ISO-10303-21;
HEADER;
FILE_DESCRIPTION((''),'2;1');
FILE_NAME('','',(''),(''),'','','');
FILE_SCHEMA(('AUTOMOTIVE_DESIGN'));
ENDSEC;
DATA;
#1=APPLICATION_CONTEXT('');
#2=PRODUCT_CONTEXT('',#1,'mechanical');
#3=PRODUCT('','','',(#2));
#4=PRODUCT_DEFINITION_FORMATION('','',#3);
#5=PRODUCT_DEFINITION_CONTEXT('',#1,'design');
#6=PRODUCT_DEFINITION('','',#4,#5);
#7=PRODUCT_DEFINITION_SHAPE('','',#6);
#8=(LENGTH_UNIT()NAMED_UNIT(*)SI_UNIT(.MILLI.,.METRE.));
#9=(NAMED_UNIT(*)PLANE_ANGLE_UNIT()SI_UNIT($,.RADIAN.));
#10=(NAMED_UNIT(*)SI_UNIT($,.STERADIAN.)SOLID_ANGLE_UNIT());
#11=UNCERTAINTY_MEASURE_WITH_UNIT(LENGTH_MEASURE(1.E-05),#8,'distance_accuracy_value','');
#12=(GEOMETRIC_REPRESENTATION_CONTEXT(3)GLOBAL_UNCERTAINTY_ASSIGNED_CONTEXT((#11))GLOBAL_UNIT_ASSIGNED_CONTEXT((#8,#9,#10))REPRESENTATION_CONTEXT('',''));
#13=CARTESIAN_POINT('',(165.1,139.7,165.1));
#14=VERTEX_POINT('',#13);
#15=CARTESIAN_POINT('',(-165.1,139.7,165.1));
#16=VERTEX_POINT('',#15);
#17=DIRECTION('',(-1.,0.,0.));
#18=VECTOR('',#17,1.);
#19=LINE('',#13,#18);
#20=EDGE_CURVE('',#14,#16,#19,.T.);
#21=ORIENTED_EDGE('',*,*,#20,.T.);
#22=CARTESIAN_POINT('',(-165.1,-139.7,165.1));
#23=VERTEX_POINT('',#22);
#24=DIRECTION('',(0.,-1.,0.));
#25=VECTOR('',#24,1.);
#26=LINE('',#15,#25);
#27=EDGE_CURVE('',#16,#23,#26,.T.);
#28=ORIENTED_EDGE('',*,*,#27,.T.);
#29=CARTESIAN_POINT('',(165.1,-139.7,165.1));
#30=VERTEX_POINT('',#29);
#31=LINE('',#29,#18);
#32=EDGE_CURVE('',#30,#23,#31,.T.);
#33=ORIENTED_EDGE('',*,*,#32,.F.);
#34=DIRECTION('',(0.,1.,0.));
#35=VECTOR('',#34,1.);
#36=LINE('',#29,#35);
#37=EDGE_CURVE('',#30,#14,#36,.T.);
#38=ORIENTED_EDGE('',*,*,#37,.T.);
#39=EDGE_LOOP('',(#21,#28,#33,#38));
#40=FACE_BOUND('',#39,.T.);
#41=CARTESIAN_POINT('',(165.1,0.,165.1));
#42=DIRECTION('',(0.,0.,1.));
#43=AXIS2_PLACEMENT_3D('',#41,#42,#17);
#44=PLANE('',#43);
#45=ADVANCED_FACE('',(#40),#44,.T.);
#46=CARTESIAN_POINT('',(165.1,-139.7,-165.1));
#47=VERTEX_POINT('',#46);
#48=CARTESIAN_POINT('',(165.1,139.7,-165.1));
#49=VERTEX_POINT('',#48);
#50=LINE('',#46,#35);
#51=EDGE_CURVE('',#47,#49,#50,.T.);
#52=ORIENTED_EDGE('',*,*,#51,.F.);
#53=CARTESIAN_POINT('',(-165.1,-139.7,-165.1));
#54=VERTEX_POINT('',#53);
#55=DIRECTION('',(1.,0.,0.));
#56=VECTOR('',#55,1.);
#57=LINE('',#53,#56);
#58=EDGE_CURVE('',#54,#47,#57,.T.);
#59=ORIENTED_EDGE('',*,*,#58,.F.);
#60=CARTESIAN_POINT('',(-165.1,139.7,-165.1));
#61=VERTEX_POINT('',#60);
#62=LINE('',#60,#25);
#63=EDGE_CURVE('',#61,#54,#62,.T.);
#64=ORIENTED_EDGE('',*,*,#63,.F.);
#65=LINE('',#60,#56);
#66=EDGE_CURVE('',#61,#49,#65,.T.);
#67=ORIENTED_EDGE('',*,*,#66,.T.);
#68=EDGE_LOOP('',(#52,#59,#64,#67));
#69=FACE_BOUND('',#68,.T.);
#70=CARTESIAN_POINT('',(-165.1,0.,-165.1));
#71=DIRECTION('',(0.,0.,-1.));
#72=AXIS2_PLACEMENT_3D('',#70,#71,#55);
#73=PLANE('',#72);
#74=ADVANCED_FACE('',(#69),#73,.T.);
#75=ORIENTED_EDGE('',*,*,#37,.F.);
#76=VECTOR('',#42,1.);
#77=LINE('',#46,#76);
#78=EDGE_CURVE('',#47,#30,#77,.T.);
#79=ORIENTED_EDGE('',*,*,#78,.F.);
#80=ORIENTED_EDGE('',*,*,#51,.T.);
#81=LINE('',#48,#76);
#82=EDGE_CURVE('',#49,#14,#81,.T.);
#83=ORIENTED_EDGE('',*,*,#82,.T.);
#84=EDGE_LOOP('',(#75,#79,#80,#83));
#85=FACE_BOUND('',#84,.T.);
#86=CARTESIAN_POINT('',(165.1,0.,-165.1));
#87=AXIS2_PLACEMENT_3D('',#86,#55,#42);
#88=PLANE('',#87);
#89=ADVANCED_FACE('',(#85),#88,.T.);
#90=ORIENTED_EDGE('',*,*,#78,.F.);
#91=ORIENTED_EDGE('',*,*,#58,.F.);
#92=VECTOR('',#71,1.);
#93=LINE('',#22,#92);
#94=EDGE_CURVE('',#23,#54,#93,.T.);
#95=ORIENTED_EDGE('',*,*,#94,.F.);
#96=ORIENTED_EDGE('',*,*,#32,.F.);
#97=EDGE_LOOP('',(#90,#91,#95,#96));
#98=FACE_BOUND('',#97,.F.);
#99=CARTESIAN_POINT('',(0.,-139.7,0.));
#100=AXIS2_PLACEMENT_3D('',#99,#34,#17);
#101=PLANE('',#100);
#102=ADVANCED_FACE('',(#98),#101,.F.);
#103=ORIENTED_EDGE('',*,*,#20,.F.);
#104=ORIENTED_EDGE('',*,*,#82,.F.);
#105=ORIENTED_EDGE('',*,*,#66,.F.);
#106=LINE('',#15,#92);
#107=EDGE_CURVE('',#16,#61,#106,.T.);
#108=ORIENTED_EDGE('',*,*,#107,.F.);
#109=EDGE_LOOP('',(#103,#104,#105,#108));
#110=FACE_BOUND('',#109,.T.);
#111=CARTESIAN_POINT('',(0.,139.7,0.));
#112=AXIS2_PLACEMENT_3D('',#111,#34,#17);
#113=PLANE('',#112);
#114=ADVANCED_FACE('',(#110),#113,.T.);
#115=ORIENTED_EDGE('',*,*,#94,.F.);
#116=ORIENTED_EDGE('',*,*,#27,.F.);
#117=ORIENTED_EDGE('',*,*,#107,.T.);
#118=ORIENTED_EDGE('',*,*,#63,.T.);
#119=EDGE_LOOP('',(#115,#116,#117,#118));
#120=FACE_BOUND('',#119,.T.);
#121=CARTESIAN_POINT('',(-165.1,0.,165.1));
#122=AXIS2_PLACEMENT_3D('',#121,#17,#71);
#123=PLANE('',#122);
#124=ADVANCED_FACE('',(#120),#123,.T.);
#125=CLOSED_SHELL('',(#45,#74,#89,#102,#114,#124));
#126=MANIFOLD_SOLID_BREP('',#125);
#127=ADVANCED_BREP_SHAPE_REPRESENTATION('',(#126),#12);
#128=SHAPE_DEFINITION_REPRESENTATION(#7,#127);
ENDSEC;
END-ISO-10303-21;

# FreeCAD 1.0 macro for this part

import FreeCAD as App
import Part
import Sketcher
Q = App.Units.Quantity


def add_polygon(sketch, points):
    """Adds a closed chain of lines whose ends are joined by coincident constraints."""
    first, n = sketch.GeometryCount, len(points)
    for a, b in zip(points, points[1:] + points[:1]):
        sketch.addGeometry(Part.LineSegment(App.Vector(*a, 0), App.Vector(*b, 0)), False)
    for i in range(n):
        sketch.addConstraint(Sketcher.Constraint("Coincident", first + i, 2, first + (i + 1) % n, 1))

doc = App.newDocument("Part")
body = doc.addObject("PartDesign::Body", "Body")

# Sketch on XZ plane
sketch1 = body.newObject("Sketcher::SketchObject", "Sketch")
sketch1.AttachmentSupport = (doc.getObject("XZ_Plane"), [""])
sketch1.MapMode = "FlatFace"
add_polygon(sketch1, [(-165, 165), (165, 165), (165, -165), (-165, -165)])  # lines 0-3
sketch1.addConstraint([
    Sketcher.Constraint("Horizontal", 0),
    Sketcher.Constraint("Vertical", 1),
    Sketcher.Constraint("Horizontal", 2),
    Sketcher.Constraint("Vertical", 3),
    Sketcher.Constraint("Symmetric", 0, 2, 2, 2, -1, 1),
    Sketcher.Constraint("Equal", 2, 1),
    Sketcher.Constraint("DistanceX", 0, 1, 0, 2, Q("13 in")),
])
pad1 = body.newObject("PartDesign::Pad", "Pad")
pad1.Profile = sketch1
pad1.Length = Q("11 in")
pad1.Midplane = True

doc.recompute()
